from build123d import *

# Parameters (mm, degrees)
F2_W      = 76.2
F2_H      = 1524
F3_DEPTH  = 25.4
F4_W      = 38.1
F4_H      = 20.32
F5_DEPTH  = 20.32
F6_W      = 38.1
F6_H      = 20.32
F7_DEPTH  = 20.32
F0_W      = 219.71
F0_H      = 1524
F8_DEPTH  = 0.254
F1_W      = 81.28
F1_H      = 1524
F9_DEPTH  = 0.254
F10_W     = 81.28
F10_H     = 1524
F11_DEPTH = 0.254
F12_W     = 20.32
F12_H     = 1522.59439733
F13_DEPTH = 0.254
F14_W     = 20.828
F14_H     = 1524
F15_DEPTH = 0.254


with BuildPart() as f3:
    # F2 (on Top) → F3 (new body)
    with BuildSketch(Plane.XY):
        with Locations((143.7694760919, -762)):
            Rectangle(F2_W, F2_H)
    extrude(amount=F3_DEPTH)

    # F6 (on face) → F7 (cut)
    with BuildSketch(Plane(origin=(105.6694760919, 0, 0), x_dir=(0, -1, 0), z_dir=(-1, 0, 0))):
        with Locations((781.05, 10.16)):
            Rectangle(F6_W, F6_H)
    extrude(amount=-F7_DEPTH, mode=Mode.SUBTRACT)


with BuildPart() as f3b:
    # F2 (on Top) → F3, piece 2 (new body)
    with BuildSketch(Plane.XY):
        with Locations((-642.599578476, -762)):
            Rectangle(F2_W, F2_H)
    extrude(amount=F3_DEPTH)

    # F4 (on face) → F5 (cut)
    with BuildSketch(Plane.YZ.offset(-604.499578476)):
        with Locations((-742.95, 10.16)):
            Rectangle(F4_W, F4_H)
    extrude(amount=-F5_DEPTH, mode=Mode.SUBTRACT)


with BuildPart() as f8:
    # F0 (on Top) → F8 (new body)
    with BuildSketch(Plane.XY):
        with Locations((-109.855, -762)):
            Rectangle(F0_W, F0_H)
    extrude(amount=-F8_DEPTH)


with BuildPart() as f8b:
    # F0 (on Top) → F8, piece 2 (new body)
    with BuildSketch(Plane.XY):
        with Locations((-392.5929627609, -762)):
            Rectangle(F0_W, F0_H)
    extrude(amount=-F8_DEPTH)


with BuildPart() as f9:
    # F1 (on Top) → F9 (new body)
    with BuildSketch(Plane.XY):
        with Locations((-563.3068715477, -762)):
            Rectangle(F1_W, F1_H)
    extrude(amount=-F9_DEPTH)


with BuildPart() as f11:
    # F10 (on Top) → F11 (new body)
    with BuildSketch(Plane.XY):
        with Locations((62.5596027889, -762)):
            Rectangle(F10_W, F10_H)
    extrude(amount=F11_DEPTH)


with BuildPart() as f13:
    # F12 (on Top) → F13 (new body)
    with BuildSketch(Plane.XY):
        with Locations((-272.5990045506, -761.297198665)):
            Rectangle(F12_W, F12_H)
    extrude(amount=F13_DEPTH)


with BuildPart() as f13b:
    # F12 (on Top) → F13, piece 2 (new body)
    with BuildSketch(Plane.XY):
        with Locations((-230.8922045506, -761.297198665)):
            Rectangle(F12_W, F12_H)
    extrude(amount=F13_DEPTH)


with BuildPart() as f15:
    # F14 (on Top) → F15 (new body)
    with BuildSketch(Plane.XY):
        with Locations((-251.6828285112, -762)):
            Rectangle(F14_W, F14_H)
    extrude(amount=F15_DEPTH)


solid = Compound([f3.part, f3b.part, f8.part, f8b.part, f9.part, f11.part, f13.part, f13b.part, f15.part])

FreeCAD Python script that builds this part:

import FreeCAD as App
import Part
import Sketcher

V = App.Vector
Q = App.Units.Quantity

doc = App.newDocument("Part")
body = doc.addObject("PartDesign::Body", "Body")

sketch1 = doc.addObject("Sketcher::SketchObject", "Sketch")
body.addObject(sketch1)
sketch1.AttachmentSupport = (doc.XY_Plane, [""])
sketch1.MapMode = "FlatFace"
sketch1.addGeometry(Part.LineSegment(V(106, 0, 0), V(106, -1524, 0)), False)
sketch1.addGeometry(Part.LineSegment(V(106, -1524, 0), V(182, -1524, 0)), False)
sketch1.addGeometry(Part.LineSegment(V(182, -1524, 0), V(182, 0, 0)), False)
sketch1.addGeometry(Part.LineSegment(V(182, 0, 0), V(106, 0, 0)), False)
sketch1.addConstraint(Sketcher.Constraint("Coincident", 0, 2, 1, 1))
sketch1.addConstraint(Sketcher.Constraint("Coincident", 1, 2, 2, 1))
sketch1.addConstraint(Sketcher.Constraint("Coincident", 2, 2, 3, 1))
sketch1.addConstraint(Sketcher.Constraint("Coincident", 3, 2, 0, 1))
sketch1.addConstraint(Sketcher.Constraint("Vertical", 0))
sketch1.addConstraint(Sketcher.Constraint("Horizontal", 1))
sketch1.addConstraint(Sketcher.Constraint("Vertical", 2))
sketch1.addConstraint(Sketcher.Constraint("Horizontal", 3))
sketch1.addConstraint(Sketcher.Constraint("PointOnObject", 2, 2, -1))
sketch1.addConstraint(Sketcher.Constraint("DistanceX", 1, 1, 1, 2, Q("3 in")))
sketch1.addConstraint(Sketcher.Constraint("DistanceY", 0, 2, 0, 1, Q("60 in")))
sketch1.addConstraint(Sketcher.Constraint("DistanceX", -1, 1, 0, 2, Q("105.669476 mm")))
pad1 = doc.addObject("PartDesign::Pad", "Pad")
body.addObject(pad1)
pad1.Profile = sketch1
pad1.Length = Q("1 in")

sketch2 = doc.addObject("Sketcher::SketchObject", "Sketch001")
body.addObject(sketch2)
sketch2.AttachmentSupport = (doc.YZ_Plane, [""])
sketch2.MapMode = "FlatFace"
sketch2.AttachmentOffset = App.Placement(V(0, 0, 105.669476), App.Rotation())
sketch2.addGeometry(Part.LineSegment(V(-762, 20, 0), V(-762, 0, 0)), False)
sketch2.addGeometry(Part.LineSegment(V(-762, 0, 0), V(-800, 0, 0)), False)
sketch2.addGeometry(Part.LineSegment(V(-800, 0, 0), V(-800, 20, 0)), False)
sketch2.addGeometry(Part.LineSegment(V(-800, 20, 0), V(-762, 20, 0)), False)
sketch2.addConstraint(Sketcher.Constraint("Coincident", 0, 2, 1, 1))
sketch2.addConstraint(Sketcher.Constraint("Coincident", 1, 2, 2, 1))
sketch2.addConstraint(Sketcher.Constraint("Coincident", 2, 2, 3, 1))
sketch2.addConstraint(Sketcher.Constraint("Coincident", 3, 2, 0, 1))
sketch2.addConstraint(Sketcher.Constraint("Vertical", 0))
sketch2.addConstraint(Sketcher.Constraint("Horizontal", 1))
sketch2.addConstraint(Sketcher.Constraint("Vertical", 2))
sketch2.addConstraint(Sketcher.Constraint("Horizontal", 3))
sketch2.addConstraint(Sketcher.Constraint("PointOnObject", 0, 2, -1))
sketch2.addConstraint(Sketcher.Constraint("DistanceX", 1, 2, 1, 1, Q("1.5 in")))
sketch2.addConstraint(Sketcher.Constraint("DistanceY", 0, 2, 0, 1, Q("0.8 in")))
sketch2.addConstraint(Sketcher.Constraint("DistanceX", 0, 2, -1, 1, Q("30 in")))
pocket1 = doc.addObject("PartDesign::Pocket", "Pocket")
body.addObject(pocket1)
pocket1.Profile = sketch2
pocket1.Length = Q("0.8 in")
pocket1.Reversed = True
body2 = doc.addObject("PartDesign::Body", "Body001")

sketch3 = doc.addObject("Sketcher::SketchObject", "Sketch002")
body2.addObject(sketch3)
sketch3.AttachmentSupport = (doc.getObject("XY_Plane001"), [""])
sketch3.MapMode = "FlatFace"
sketch3.addGeometry(Part.LineSegment(V(-681, 0, 0), V(-681, -1524, 0)), False)
sketch3.addGeometry(Part.LineSegment(V(-681, -1524, 0), V(-604, -1524, 0)), False)
sketch3.addGeometry(Part.LineSegment(V(-604, -1524, 0), V(-604, 0, 0)), False)
sketch3.addGeometry(Part.LineSegment(V(-604, 0, 0), V(-681, 0, 0)), False)
sketch3.addConstraint(Sketcher.Constraint("Coincident", 0, 2, 1, 1))
sketch3.addConstraint(Sketcher.Constraint("Coincident", 1, 2, 2, 1))
sketch3.addConstraint(Sketcher.Constraint("Coincident", 2, 2, 3, 1))
sketch3.addConstraint(Sketcher.Constraint("Coincident", 3, 2, 0, 1))
sketch3.addConstraint(Sketcher.Constraint("Vertical", 0))
sketch3.addConstraint(Sketcher.Constraint("Horizontal", 1))
sketch3.addConstraint(Sketcher.Constraint("Vertical", 2))
sketch3.addConstraint(Sketcher.Constraint("Horizontal", 3))
sketch3.addConstraint(Sketcher.Constraint("PointOnObject", 2, 2, -1))
sketch3.addConstraint(Sketcher.Constraint("DistanceX", 1, 1, 1, 2, Q("3 in")))
sketch3.addConstraint(Sketcher.Constraint("DistanceY", 0, 2, 0, 1, Q("60 in")))
sketch3.addConstraint(Sketcher.Constraint("DistanceX", 0, 2, -1, 1, Q("680.699578 mm")))
pad2 = doc.addObject("PartDesign::Pad", "Pad001")
body2.addObject(pad2)
pad2.Profile = sketch3
pad2.Length = Q("1 in")

sketch4 = doc.addObject("Sketcher::SketchObject", "Sketch003")
body2.addObject(sketch4)
sketch4.AttachmentSupport = (doc.getObject("YZ_Plane001"), [""])
sketch4.MapMode = "FlatFace"
sketch4.AttachmentOffset = App.Placement(V(0, 0, -604.499578), App.Rotation())
sketch4.addGeometry(Part.LineSegment(V(-762, 20, 0), V(-762, 0, 0)), False)
sketch4.addGeometry(Part.LineSegment(V(-762, 0, 0), V(-724, 0, 0)), False)
sketch4.addGeometry(Part.LineSegment(V(-724, 0, 0), V(-724, 20, 0)), False)
sketch4.addGeometry(Part.LineSegment(V(-724, 20, 0), V(-762, 20, 0)), False)
sketch4.addConstraint(Sketcher.Constraint("Coincident", 0, 2, 1, 1))
sketch4.addConstraint(Sketcher.Constraint("Coincident", 1, 2, 2, 1))
sketch4.addConstraint(Sketcher.Constraint("Coincident", 2, 2, 3, 1))
sketch4.addConstraint(Sketcher.Constraint("Coincident", 3, 2, 0, 1))
sketch4.addConstraint(Sketcher.Constraint("Vertical", 0))
sketch4.addConstraint(Sketcher.Constraint("Horizontal", 1))
sketch4.addConstraint(Sketcher.Constraint("Vertical", 2))
sketch4.addConstraint(Sketcher.Constraint("Horizontal", 3))
sketch4.addConstraint(Sketcher.Constraint("PointOnObject", 0, 2, -1))
sketch4.addConstraint(Sketcher.Constraint("DistanceX", 1, 1, 1, 2, Q("1.5 in")))
sketch4.addConstraint(Sketcher.Constraint("DistanceY", 0, 2, 0, 1, Q("0.8 in")))
sketch4.addConstraint(Sketcher.Constraint("DistanceX", 0, 2, -1, 1, Q("30 in")))
pocket2 = doc.addObject("PartDesign::Pocket", "Pocket001")
body2.addObject(pocket2)
pocket2.Profile = sketch4
pocket2.Length = Q("0.8 in")
body3 = doc.addObject("PartDesign::Body", "Body002")

sketch5 = doc.addObject("Sketcher::SketchObject", "Sketch004")
body3.addObject(sketch5)
sketch5.AttachmentSupport = (doc.getObject("XY_Plane002"), [""])
sketch5.MapMode = "FlatFace"
sketch5.addGeometry(Part.LineSegment(V(-220, 0, 0), V(-220, -1524, 0)), False)
sketch5.addGeometry(Part.LineSegment(V(-220, -1524, 0), V(0, -1524, 0)), False)
sketch5.addGeometry(Part.LineSegment(V(0, -1524, 0), V(0, 0, 0)), False)
sketch5.addGeometry(Part.LineSegment(V(0, 0, 0), V(-220, 0, 0)), False)
sketch5.addConstraint(Sketcher.Constraint("Coincident", 0, 2, 1, 1))
sketch5.addConstraint(Sketcher.Constraint("Coincident", 1, 2, 2, 1))
sketch5.addConstraint(Sketcher.Constraint("Coincident", 2, 2, 3, 1))
sketch5.addConstraint(Sketcher.Constraint("Coincident", 3, 2, 0, 1))
sketch5.addConstraint(Sketcher.Constraint("Vertical", 0))
sketch5.addConstraint(Sketcher.Constraint("Horizontal", 1))
sketch5.addConstraint(Sketcher.Constraint("Vertical", 2))
sketch5.addConstraint(Sketcher.Constraint("Horizontal", 3))
sketch5.addConstraint(Sketcher.Constraint("Coincident", 2, 2, -1, 1))
sketch5.addConstraint(Sketcher.Constraint("DistanceY", 0, 2, 0, 1, Q("60 in")))
sketch5.addConstraint(Sketcher.Constraint("DistanceX", 1, 1, 1, 2, Q("8.65 in")))
pad3 = doc.addObject("PartDesign::Pad", "Pad002")
body3.addObject(pad3)
pad3.Profile = sketch5
pad3.Length = Q("0.01 in")
pad3.Reversed = True
body4 = doc.addObject("PartDesign::Body", "Body003")

sketch6 = doc.addObject("Sketcher::SketchObject", "Sketch005")
body4.addObject(sketch6)
sketch6.AttachmentSupport = (doc.getObject("XY_Plane003"), [""])
sketch6.MapMode = "FlatFace"
sketch6.addGeometry(Part.LineSegment(V(-502, 0, 0), V(-502, -1524, 0)), False)
sketch6.addGeometry(Part.LineSegment(V(-502, -1524, 0), V(-283, -1524, 0)), False)
sketch6.addGeometry(Part.LineSegment(V(-283, -1524, 0), V(-283, 0, 0)), False)
sketch6.addGeometry(Part.LineSegment(V(-283, 0, 0), V(-502, 0, 0)), False)
sketch6.addConstraint(Sketcher.Constraint("Coincident", 0, 2, 1, 1))
sketch6.addConstraint(Sketcher.Constraint("Coincident", 1, 2, 2, 1))
sketch6.addConstraint(Sketcher.Constraint("Coincident", 2, 2, 3, 1))
sketch6.addConstraint(Sketcher.Constraint("Coincident", 3, 2, 0, 1))
sketch6.addConstraint(Sketcher.Constraint("Vertical", 0))
sketch6.addConstraint(Sketcher.Constraint("Horizontal", 1))
sketch6.addConstraint(Sketcher.Constraint("Vertical", 2))
sketch6.addConstraint(Sketcher.Constraint("Horizontal", 3))
sketch6.addConstraint(Sketcher.Constraint("PointOnObject", 2, 2, -1))
sketch6.addConstraint(Sketcher.Constraint("DistanceY", 0, 2, 0, 1, Q("60 in")))
sketch6.addConstraint(Sketcher.Constraint("DistanceX", 1, 1, 1, 2, Q("8.65 in")))
sketch6.addConstraint(Sketcher.Constraint("DistanceX", 0, 2, -1, 1, Q("502.447963 mm")))
pad4 = doc.addObject("PartDesign::Pad", "Pad003")
body4.addObject(pad4)
pad4.Profile = sketch6
pad4.Length = Q("0.01 in")
pad4.Reversed = True
body5 = doc.addObject("PartDesign::Body", "Body004")

sketch7 = doc.addObject("Sketcher::SketchObject", "Sketch006")
body5.addObject(sketch7)
sketch7.AttachmentSupport = (doc.getObject("XY_Plane004"), [""])
sketch7.MapMode = "FlatFace"
sketch7.addGeometry(Part.LineSegment(V(-604, 0, 0), V(-604, -1524, 0)), False)
sketch7.addGeometry(Part.LineSegment(V(-604, -1524, 0), V(-523, -1524, 0)), False)
sketch7.addGeometry(Part.LineSegment(V(-523, -1524, 0), V(-523, 0, 0)), False)
sketch7.addGeometry(Part.LineSegment(V(-523, 0, 0), V(-604, 0, 0)), False)
sketch7.addConstraint(Sketcher.Constraint("Coincident", 0, 2, 1, 1))
sketch7.addConstraint(Sketcher.Constraint("Coincident", 1, 2, 2, 1))
sketch7.addConstraint(Sketcher.Constraint("Coincident", 2, 2, 3, 1))
sketch7.addConstraint(Sketcher.Constraint("Coincident", 3, 2, 0, 1))
sketch7.addConstraint(Sketcher.Constraint("Vertical", 0))
sketch7.addConstraint(Sketcher.Constraint("Horizontal", 1))
sketch7.addConstraint(Sketcher.Constraint("Vertical", 2))
sketch7.addConstraint(Sketcher.Constraint("Horizontal", 3))
sketch7.addConstraint(Sketcher.Constraint("PointOnObject", 2, 2, -1))
sketch7.addConstraint(Sketcher.Constraint("DistanceY", 0, 2, 0, 1, Q("60 in")))
sketch7.addConstraint(Sketcher.Constraint("DistanceX", 1, 1, 1, 2, Q("3.2 in")))
sketch7.addConstraint(Sketcher.Constraint("DistanceX", 0, 2, -1, 1, Q("603.946872 mm")))
pad5 = doc.addObject("PartDesign::Pad", "Pad004")
body5.addObject(pad5)
pad5.Profile = sketch7
pad5.Length = Q("0.01 in")
pad5.Reversed = True
body6 = doc.addObject("PartDesign::Body", "Body005")

sketch8 = doc.addObject("Sketcher::SketchObject", "Sketch007")
body6.addObject(sketch8)
sketch8.AttachmentSupport = (doc.getObject("XY_Plane005"), [""])
sketch8.MapMode = "FlatFace"
sketch8.addGeometry(Part.LineSegment(V(22, 0, 0), V(22, -1524, 0)), False)
sketch8.addGeometry(Part.LineSegment(V(22, -1524, 0), V(103, -1524, 0)), False)
sketch8.addGeometry(Part.LineSegment(V(103, -1524, 0), V(103, 0, 0)), False)
sketch8.addGeometry(Part.LineSegment(V(103, 0, 0), V(22, 0, 0)), False)
sketch8.addConstraint(Sketcher.Constraint("Coincident", 0, 2, 1, 1))
sketch8.addConstraint(Sketcher.Constraint("Coincident", 1, 2, 2, 1))
sketch8.addConstraint(Sketcher.Constraint("Coincident", 2, 2, 3, 1))
sketch8.addConstraint(Sketcher.Constraint("Coincident", 3, 2, 0, 1))
sketch8.addConstraint(Sketcher.Constraint("Vertical", 0))
sketch8.addConstraint(Sketcher.Constraint("Horizontal", 1))
sketch8.addConstraint(Sketcher.Constraint("Vertical", 2))
sketch8.addConstraint(Sketcher.Constraint("Horizontal", 3))
sketch8.addConstraint(Sketcher.Constraint("PointOnObject", 2, 2, -1))
sketch8.addConstraint(Sketcher.Constraint("DistanceY", 0, 2, 0, 1, Q("60 in")))
sketch8.addConstraint(Sketcher.Constraint("DistanceX", 1, 1, 1, 2, Q("3.2 in")))
sketch8.addConstraint(Sketcher.Constraint("DistanceX", -1, 1, 0, 2, Q("21.919603 mm")))
pad6 = doc.addObject("PartDesign::Pad", "Pad005")
body6.addObject(pad6)
pad6.Profile = sketch8
pad6.Length = Q("0.01 in")
body7 = doc.addObject("PartDesign::Body", "Body006")

sketch9 = doc.addObject("Sketcher::SketchObject", "Sketch008")
body7.addObject(sketch9)
sketch9.AttachmentSupport = (doc.getObject("XY_Plane006"), [""])
sketch9.MapMode = "FlatFace"
sketch9.addGeometry(Part.LineSegment(V(-283, 0, 0), V(-283, -1523, 0)), False)
sketch9.addGeometry(Part.LineSegment(V(-283, -1523, 0), V(-262, -1523, 0)), False)
sketch9.addGeometry(Part.LineSegment(V(-262, -1523, 0), V(-262, 0, 0)), False)
sketch9.addGeometry(Part.LineSegment(V(-262, 0, 0), V(-283, 0, 0)), False)
sketch9.addConstraint(Sketcher.Constraint("Coincident", 0, 2, 1, 1))
sketch9.addConstraint(Sketcher.Constraint("Coincident", 1, 2, 2, 1))
sketch9.addConstraint(Sketcher.Constraint("Coincident", 2, 2, 3, 1))
sketch9.addConstraint(Sketcher.Constraint("Coincident", 3, 2, 0, 1))
sketch9.addConstraint(Sketcher.Constraint("Vertical", 0))
sketch9.addConstraint(Sketcher.Constraint("Horizontal", 1))
sketch9.addConstraint(Sketcher.Constraint("Vertical", 2))
sketch9.addConstraint(Sketcher.Constraint("Horizontal", 3))
sketch9.addConstraint(Sketcher.Constraint("PointOnObject", 2, 2, -1))
sketch9.addConstraint(Sketcher.Constraint("DistanceX", 1, 1, 1, 2, Q("0.8 in")))
sketch9.addConstraint(Sketcher.Constraint("DistanceY", 0, 2, 0, 1, Q("1522.594397 mm")))
sketch9.addConstraint(Sketcher.Constraint("DistanceX", 0, 2, -1, 1, Q("282.759005 mm")))
pad7 = doc.addObject("PartDesign::Pad", "Pad006")
body7.addObject(pad7)
pad7.Profile = sketch9
pad7.Length = Q("0.01 in")
body8 = doc.addObject("PartDesign::Body", "Body007")

sketch10 = doc.addObject("Sketcher::SketchObject", "Sketch009")
body8.addObject(sketch10)
sketch10.AttachmentSupport = (doc.getObject("XY_Plane007"), [""])
sketch10.MapMode = "FlatFace"
sketch10.addGeometry(Part.LineSegment(V(-241, 0, 0), V(-241, -1523, 0)), False)
sketch10.addGeometry(Part.LineSegment(V(-241, -1523, 0), V(-221, -1523, 0)), False)
sketch10.addGeometry(Part.LineSegment(V(-221, -1523, 0), V(-221, 0, 0)), False)
sketch10.addGeometry(Part.LineSegment(V(-221, 0, 0), V(-241, 0, 0)), False)
sketch10.addConstraint(Sketcher.Constraint("Coincident", 0, 2, 1, 1))
sketch10.addConstraint(Sketcher.Constraint("Coincident", 1, 2, 2, 1))
sketch10.addConstraint(Sketcher.Constraint("Coincident", 2, 2, 3, 1))
sketch10.addConstraint(Sketcher.Constraint("Coincident", 3, 2, 0, 1))
sketch10.addConstraint(Sketcher.Constraint("Vertical", 0))
sketch10.addConstraint(Sketcher.Constraint("Horizontal", 1))
sketch10.addConstraint(Sketcher.Constraint("Vertical", 2))
sketch10.addConstraint(Sketcher.Constraint("Horizontal", 3))
sketch10.addConstraint(Sketcher.Constraint("PointOnObject", 2, 2, -1))
sketch10.addConstraint(Sketcher.Constraint("DistanceX", 1, 1, 1, 2, Q("0.8 in")))
sketch10.addConstraint(Sketcher.Constraint("DistanceY", 0, 2, 0, 1, Q("1522.594397 mm")))
sketch10.addConstraint(Sketcher.Constraint("DistanceX", 0, 2, -1, 1, Q("241.052205 mm")))
pad8 = doc.addObject("PartDesign::Pad", "Pad007")
body8.addObject(pad8)
pad8.Profile = sketch10
pad8.Length = Q("0.01 in")
body9 = doc.addObject("PartDesign::Body", "Body008")

sketch11 = doc.addObject("Sketcher::SketchObject", "Sketch010")
body9.addObject(sketch11)
sketch11.AttachmentSupport = (doc.getObject("XY_Plane008"), [""])
sketch11.MapMode = "FlatFace"
sketch11.addGeometry(Part.LineSegment(V(-262, 0, 0), V(-262, -1524, 0)), False)
sketch11.addGeometry(Part.LineSegment(V(-262, -1524, 0), V(-241, -1524, 0)), False)
sketch11.addGeometry(Part.LineSegment(V(-241, -1524, 0), V(-241, 0, 0)), False)
sketch11.addGeometry(Part.LineSegment(V(-241, 0, 0), V(-262, 0, 0)), False)
sketch11.addConstraint(Sketcher.Constraint("Coincident", 0, 2, 1, 1))
sketch11.addConstraint(Sketcher.Constraint("Coincident", 1, 2, 2, 1))
sketch11.addConstraint(Sketcher.Constraint("Coincident", 2, 2, 3, 1))
sketch11.addConstraint(Sketcher.Constraint("Coincident", 3, 2, 0, 1))
sketch11.addConstraint(Sketcher.Constraint("Vertical", 0))
sketch11.addConstraint(Sketcher.Constraint("Horizontal", 1))
sketch11.addConstraint(Sketcher.Constraint("Vertical", 2))
sketch11.addConstraint(Sketcher.Constraint("Horizontal", 3))
sketch11.addConstraint(Sketcher.Constraint("PointOnObject", 2, 2, -1))
sketch11.addConstraint(Sketcher.Constraint("DistanceY", 0, 2, 0, 1, Q("60 in")))
sketch11.addConstraint(Sketcher.Constraint("DistanceX", 1, 1, 1, 2, Q("0.82 in")))
sketch11.addConstraint(Sketcher.Constraint("DistanceX", 0, 2, -1, 1, Q("262.096829 mm")))
pad9 = doc.addObject("PartDesign::Pad", "Pad008")
body9.addObject(pad9)
pad9.Profile = sketch11
pad9.Length = Q("0.01 in")

doc.recompute()
